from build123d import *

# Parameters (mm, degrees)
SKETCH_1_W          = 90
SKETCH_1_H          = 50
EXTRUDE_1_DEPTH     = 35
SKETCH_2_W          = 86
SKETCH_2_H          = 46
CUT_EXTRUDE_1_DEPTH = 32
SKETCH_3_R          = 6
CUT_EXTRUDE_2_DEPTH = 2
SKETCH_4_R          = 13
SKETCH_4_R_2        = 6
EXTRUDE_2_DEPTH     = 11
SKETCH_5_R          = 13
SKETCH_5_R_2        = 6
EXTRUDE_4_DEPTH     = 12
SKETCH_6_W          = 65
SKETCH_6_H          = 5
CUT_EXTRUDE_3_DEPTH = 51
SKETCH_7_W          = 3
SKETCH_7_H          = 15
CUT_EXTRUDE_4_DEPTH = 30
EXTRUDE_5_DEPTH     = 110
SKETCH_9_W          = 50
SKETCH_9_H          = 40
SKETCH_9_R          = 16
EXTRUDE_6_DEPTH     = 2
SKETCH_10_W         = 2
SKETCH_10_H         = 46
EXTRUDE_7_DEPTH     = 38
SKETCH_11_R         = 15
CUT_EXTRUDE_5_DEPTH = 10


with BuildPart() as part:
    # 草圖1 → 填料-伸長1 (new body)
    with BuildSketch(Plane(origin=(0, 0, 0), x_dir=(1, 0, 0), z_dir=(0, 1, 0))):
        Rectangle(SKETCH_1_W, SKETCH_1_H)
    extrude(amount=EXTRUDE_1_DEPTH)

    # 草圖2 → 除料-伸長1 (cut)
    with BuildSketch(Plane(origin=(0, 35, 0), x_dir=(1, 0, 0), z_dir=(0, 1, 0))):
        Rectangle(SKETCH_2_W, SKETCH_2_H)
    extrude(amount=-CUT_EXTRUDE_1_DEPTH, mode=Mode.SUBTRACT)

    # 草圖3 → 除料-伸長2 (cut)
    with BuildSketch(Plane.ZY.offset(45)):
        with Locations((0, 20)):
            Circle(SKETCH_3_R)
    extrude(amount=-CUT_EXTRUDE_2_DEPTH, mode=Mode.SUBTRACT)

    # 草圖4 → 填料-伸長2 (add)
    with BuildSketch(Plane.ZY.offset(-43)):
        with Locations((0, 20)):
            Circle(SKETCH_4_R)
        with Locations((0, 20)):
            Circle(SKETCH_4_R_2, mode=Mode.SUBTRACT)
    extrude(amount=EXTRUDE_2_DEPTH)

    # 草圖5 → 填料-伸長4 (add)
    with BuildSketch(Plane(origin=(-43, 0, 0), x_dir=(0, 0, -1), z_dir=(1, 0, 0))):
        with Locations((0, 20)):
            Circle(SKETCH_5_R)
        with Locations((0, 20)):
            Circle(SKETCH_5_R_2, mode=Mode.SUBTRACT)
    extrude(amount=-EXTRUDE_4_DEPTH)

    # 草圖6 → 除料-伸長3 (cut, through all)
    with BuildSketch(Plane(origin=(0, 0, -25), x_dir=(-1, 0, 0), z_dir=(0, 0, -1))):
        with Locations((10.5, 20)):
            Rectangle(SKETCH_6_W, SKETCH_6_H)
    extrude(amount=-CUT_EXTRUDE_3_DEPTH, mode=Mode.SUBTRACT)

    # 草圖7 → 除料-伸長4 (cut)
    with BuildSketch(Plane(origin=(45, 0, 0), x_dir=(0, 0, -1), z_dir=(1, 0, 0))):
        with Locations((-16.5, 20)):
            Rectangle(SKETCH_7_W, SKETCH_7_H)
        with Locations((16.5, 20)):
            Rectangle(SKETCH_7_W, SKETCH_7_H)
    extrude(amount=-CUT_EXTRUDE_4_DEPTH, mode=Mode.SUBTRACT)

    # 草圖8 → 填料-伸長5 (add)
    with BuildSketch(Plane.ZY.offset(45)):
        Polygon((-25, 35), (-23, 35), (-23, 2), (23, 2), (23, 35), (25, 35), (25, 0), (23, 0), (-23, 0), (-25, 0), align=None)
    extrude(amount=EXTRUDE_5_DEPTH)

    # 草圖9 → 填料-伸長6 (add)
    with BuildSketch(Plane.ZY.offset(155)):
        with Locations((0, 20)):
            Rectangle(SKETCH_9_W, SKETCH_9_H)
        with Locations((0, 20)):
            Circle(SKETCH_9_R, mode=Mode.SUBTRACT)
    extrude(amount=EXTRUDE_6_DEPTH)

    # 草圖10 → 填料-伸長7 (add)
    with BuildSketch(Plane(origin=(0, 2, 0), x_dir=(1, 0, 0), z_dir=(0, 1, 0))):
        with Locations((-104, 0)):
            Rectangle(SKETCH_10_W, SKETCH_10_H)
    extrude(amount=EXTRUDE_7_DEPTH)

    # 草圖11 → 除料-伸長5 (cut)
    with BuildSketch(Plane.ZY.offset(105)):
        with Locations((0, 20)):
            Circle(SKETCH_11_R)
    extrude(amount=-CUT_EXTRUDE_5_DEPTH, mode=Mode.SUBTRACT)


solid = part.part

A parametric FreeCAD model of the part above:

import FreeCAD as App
import Part
import Sketcher
from FreeCAD import Vector
Q = App.Units.Quantity


def add_polygon(sketch, points):
    """Adds a closed chain of lines whose ends are joined by coincident constraints."""
    first, n = sketch.GeometryCount, len(points)
    for a, b in zip(points, points[1:] + points[:1]):
        sketch.addGeometry(Part.LineSegment(App.Vector(*a, 0), App.Vector(*b, 0)), False)
    for i in range(n):
        sketch.addConstraint(Sketcher.Constraint("Coincident", first + i, 2, first + (i + 1) % n, 1))

doc = App.newDocument("Part")
body = doc.addObject("PartDesign::Body", "Body")

# Sketch on XZ plane
sketch1 = body.newObject("Sketcher::SketchObject", "Sketch")
sketch1.AttachmentSupport = (doc.getObject("XZ_Plane"), [""])
sketch1.MapMode = "FlatFace"
add_polygon(sketch1, [(-45, -25), (-45, 25), (45, 25), (45, -25)])  # lines 0-3
sketch1.addConstraint([
    Sketcher.Constraint("Vertical", 0),
    Sketcher.Constraint("Horizontal", 1),
    Sketcher.Constraint("Vertical", 2),
    Sketcher.Constraint("Horizontal", 3),
    Sketcher.Constraint("Symmetric", 0, 2, 2, 2, -1, 1),
    Sketcher.Constraint("DistanceX", 1, 1, 1, 2, Q("90 mm")),
    Sketcher.Constraint("DistanceY", 0, 1, 0, 2, Q("50 mm")),
])
pad1 = body.newObject("PartDesign::Pad", "Pad")
pad1.Profile = sketch1
pad1.Length = 35
pad1.Reversed = True

# Sketch on XZ plane
sketch2 = body.newObject("Sketcher::SketchObject", "Sketch001")
sketch2.AttachmentSupport = (doc.getObject("XZ_Plane"), [""])
sketch2.MapMode = "FlatFace"
sketch2.AttachmentOffset = App.Placement(Vector(0, 0, -35), App.Rotation())
add_polygon(sketch2, [(-43, -23), (-43, 23), (43, 23), (43, -23)])  # lines 0-3
sketch2.addConstraint([
    Sketcher.Constraint("Vertical", 0),
    Sketcher.Constraint("Horizontal", 1),
    Sketcher.Constraint("Vertical", 2),
    Sketcher.Constraint("Horizontal", 3),
    Sketcher.Constraint("Symmetric", 0, 2, 2, 2, -1, 1),
    Sketcher.Constraint("DistanceX", 1, 1, 1, 2, Q("86 mm")),
    Sketcher.Constraint("DistanceY", 0, 1, 0, 2, Q("46 mm")),
])
pocket1 = body.newObject("PartDesign::Pocket", "Pocket")
pocket1.Profile = sketch2
pocket1.Length = 32
pocket1.Reversed = True

# Sketch on YZ plane
sketch3 = body.newObject("Sketcher::SketchObject", "Sketch002")
sketch3.AttachmentSupport = (doc.getObject("YZ_Plane"), [""])
sketch3.MapMode = "FlatFace"
sketch3.AttachmentOffset = App.Placement(Vector(0, 0, -45), App.Rotation())
sketch3.addGeometry(Part.Circle(Vector(20, 0, 0), Vector(0, 0, 1), 6), False)
sketch3.addConstraint([
    Sketcher.Constraint("PointOnObject", 0, 3, -1),
    Sketcher.Constraint("Diameter", 0, Q("12 mm")),
    Sketcher.Constraint("DistanceX", -1, 1, 0, 3, Q("20 mm")),
])
pocket2 = body.newObject("PartDesign::Pocket", "Pocket001")
pocket2.Profile = sketch3
pocket2.Length = 2
pocket2.Reversed = True

# Sketch on YZ plane
sketch4 = body.newObject("Sketcher::SketchObject", "Sketch003")
sketch4.AttachmentSupport = (doc.getObject("YZ_Plane"), [""])
sketch4.MapMode = "FlatFace"
sketch4.AttachmentOffset = App.Placement(Vector(0, 0, 43), App.Rotation())
sketch4.addGeometry([
    Part.Circle(Vector(20, 0, 0), Vector(0, 0, 1), 13),
    Part.Circle(Vector(20, 0, 0), Vector(0, 0, 1), 6),
], False)
sketch4.addConstraint([
    Sketcher.Constraint("Coincident", 1, 3, 0, 3),
    Sketcher.Constraint("PointOnObject", 0, 3, -1),
    Sketcher.Constraint("Diameter", 0, Q("26 mm")),
    Sketcher.Constraint("Diameter", 1, Q("12 mm")),
    Sketcher.Constraint("DistanceX", -1, 1, 0, 3, Q("20 mm")),
])
pad2 = body.newObject("PartDesign::Pad", "Pad001")
pad2.Profile = sketch4
pad2.Length = 11
pad2.Reversed = True

# Sketch on YZ plane
sketch5 = body.newObject("Sketcher::SketchObject", "Sketch004")
sketch5.AttachmentSupport = (doc.getObject("YZ_Plane"), [""])
sketch5.MapMode = "FlatFace"
sketch5.AttachmentOffset = App.Placement(Vector(0, 0, -43), App.Rotation())
sketch5.addGeometry([
    Part.Circle(Vector(20, 0, 0), Vector(0, 0, 1), 13),
    Part.Circle(Vector(20, 0, 0), Vector(0, 0, 1), 6),
], False)
sketch5.addConstraint([
    Sketcher.Constraint("Coincident", 1, 3, 0, 3),
    Sketcher.Constraint("PointOnObject", 0, 3, -1),
    Sketcher.Constraint("Diameter", 0, Q("26 mm")),
    Sketcher.Constraint("Diameter", 1, Q("12 mm")),
    Sketcher.Constraint("DistanceX", -1, 1, 0, 3, Q("20 mm")),
])
pad3 = body.newObject("PartDesign::Pad", "Pad002")
pad3.Profile = sketch5
pad3.Length = 12
pad3.Reversed = True

# Sketch on XY plane
sketch6 = body.newObject("Sketcher::SketchObject", "Sketch005")
sketch6.AttachmentSupport = (doc.getObject("XY_Plane"), [""])
sketch6.MapMode = "FlatFace"
sketch6.AttachmentOffset = App.Placement(Vector(0, 0, -25), App.Rotation())
add_polygon(sketch6, [(22, 22), (22, 18), (-43, 18), (-43, 22)])  # lines 0-3
sketch6.addConstraint([
    Sketcher.Constraint("Vertical", 0),
    Sketcher.Constraint("Horizontal", 1),
    Sketcher.Constraint("Vertical", 2),
    Sketcher.Constraint("Horizontal", 3),
    Sketcher.Constraint("DistanceX", 1, 2, 1, 1, Q("65 mm")),
    Sketcher.Constraint("DistanceY", 0, 2, 0, 1, Q("5 mm")),
    Sketcher.Constraint("DistanceX", -1, 1, 0, 2, Q("22 mm")),
    Sketcher.Constraint("DistanceY", -1, 1, 0, 2, Q("17.5 mm")),
])
pocket3 = body.newObject("PartDesign::Pocket", "Pocket002")
pocket3.Profile = sketch6
pocket3.Type = "ThroughAll"
pocket3.Reversed = True

# Sketch on YZ plane
sketch7 = body.newObject("Sketcher::SketchObject", "Sketch006")
sketch7.AttachmentSupport = (doc.getObject("YZ_Plane"), [""])
sketch7.MapMode = "FlatFace"
sketch7.AttachmentOffset = App.Placement(Vector(0, 0, 45), App.Rotation())
add_polygon(sketch7, [(27.5, 18), (12.5, 18), (12.5, 15), (27.5, 15)])  # lines 0-3
add_polygon(sketch7, [(27.5, -15), (12.5, -15), (12.5, -18), (27.5, -18)])  # lines 4-7
sketch7.addConstraint([
    Sketcher.Constraint("Horizontal", 0),
    Sketcher.Constraint("Vertical", 1),
    Sketcher.Constraint("Horizontal", 2),
    Sketcher.Constraint("Vertical", 3),
    Sketcher.Constraint("Horizontal", 4),
    Sketcher.Constraint("Vertical", 5),
    Sketcher.Constraint("Horizontal", 6),
    Sketcher.Constraint("Vertical", 7),
    Sketcher.Constraint("Symmetric", 1, 2, 4, 2, -1),
    Sketcher.Constraint("Symmetric", 3, 2, 6, 2, -1),
    Sketcher.Constraint("DistanceX", 0, 2, 0, 1, Q("15 mm")),
    Sketcher.Constraint("DistanceY", 1, 2, 1, 1, Q("3 mm")),
    Sketcher.Constraint("DistanceY", -1, 1, 0, 2, Q("18 mm")),
    Sketcher.Constraint("DistanceX", -1, 1, 0, 2, Q("12.5 mm")),
])
pocket4 = body.newObject("PartDesign::Pocket", "Pocket003")
pocket4.Profile = sketch7
pocket4.Length = 30

# Sketch on YZ plane
sketch8 = body.newObject("Sketcher::SketchObject", "Sketch007")
sketch8.AttachmentSupport = (doc.getObject("YZ_Plane"), [""])
sketch8.MapMode = "FlatFace"
sketch8.AttachmentOffset = App.Placement(Vector(0, 0, -45), App.Rotation())
add_polygon(sketch8, [(35, -23), (35, -25), (0, -25), (0, 25), (35, 25), (35, 23), (2, 23), (2, -23)])  # lines 0-7
sketch8.addConstraint([
    Sketcher.Constraint("Vertical", 0),
    Sketcher.Constraint("Horizontal", 1),
    Sketcher.Constraint("Vertical", 2),
    Sketcher.Constraint("Horizontal", 3),
    Sketcher.Constraint("Vertical", 4),
    Sketcher.Constraint("Horizontal", 5),
    Sketcher.Constraint("Vertical", 6),
    Sketcher.Constraint("Horizontal", 7),
    Sketcher.Constraint("Symmetric", 1, 2, 2, 2, -1, 1),
    Sketcher.Constraint("Symmetric", 4, 2, 7, 2, -1),
    Sketcher.Constraint("DistanceX", 1, 2, 1, 1, Q("35 mm")),
    Sketcher.Constraint("DistanceX", 5, 2, 5, 1, Q("33 mm")),
    Sketcher.Constraint("DistanceY", 0, 2, 0, 1, Q("2 mm")),
    Sketcher.Constraint("DistanceY", 2, 1, 2, 2, Q("50 mm")),
])
pad4 = body.newObject("PartDesign::Pad", "Pad003")
pad4.Profile = sketch8
pad4.Length = 110
pad4.Reversed = True

# Sketch on YZ plane
sketch9 = body.newObject("Sketcher::SketchObject", "Sketch008")
sketch9.AttachmentSupport = (doc.getObject("YZ_Plane"), [""])
sketch9.MapMode = "FlatFace"
sketch9.AttachmentOffset = App.Placement(Vector(0, 0, -155), App.Rotation())
add_polygon(sketch9, [(40, -25), (0, -25), (0, 25), (40, 25)])  # lines 0-3
sketch9.addGeometry(Part.Circle(Vector(20, 0, 0), Vector(0, 0, 1), 16), False)  # 4
sketch9.addConstraint([
    Sketcher.Constraint("Horizontal", 0),
    Sketcher.Constraint("Vertical", 1),
    Sketcher.Constraint("Horizontal", 2),
    Sketcher.Constraint("Vertical", 3),
    Sketcher.Constraint("Symmetric", 0, 2, 1, 2, -1, 1),
    Sketcher.Constraint("PointOnObject", 4, 3, -1),
    Sketcher.Constraint("Diameter", 4, Q("32 mm")),
    Sketcher.Constraint("DistanceX", 0, 2, 0, 1, Q("40 mm")),
    Sketcher.Constraint("DistanceY", 1, 1, 1, 2, Q("50 mm")),
    Sketcher.Constraint("DistanceX", -1, 1, 4, 3, Q("20 mm")),
])
pad5 = body.newObject("PartDesign::Pad", "Pad004")
pad5.Profile = sketch9
pad5.Length = 2
pad5.Reversed = True

# Sketch on XZ plane
sketch10 = body.newObject("Sketcher::SketchObject", "Sketch009")
sketch10.AttachmentSupport = (doc.getObject("XZ_Plane"), [""])
sketch10.MapMode = "FlatFace"
sketch10.AttachmentOffset = App.Placement(Vector(0, 0, -2), App.Rotation())
add_polygon(sketch10, [(-105, -23), (-105, 23), (-103, 23), (-103, -23)])  # lines 0-3
sketch10.addConstraint([
    Sketcher.Constraint("Vertical", 0),
    Sketcher.Constraint("Horizontal", 1),
    Sketcher.Constraint("Vertical", 2),
    Sketcher.Constraint("Horizontal", 3),
    Sketcher.Constraint("DistanceX", 1, 1, 1, 2, Q("2 mm")),
    Sketcher.Constraint("DistanceY", 0, 1, 0, 2, Q("46 mm")),
    Sketcher.Constraint("DistanceX", 0, 2, -1, 1, Q("105 mm")),
    Sketcher.Constraint("DistanceY", -1, 1, 0, 2, Q("23 mm")),
])
pad6 = body.newObject("PartDesign::Pad", "Pad005")
pad6.Profile = sketch10
pad6.Length = 38
pad6.Reversed = True

# Sketch on YZ plane
sketch11 = body.newObject("Sketcher::SketchObject", "Sketch010")
sketch11.AttachmentSupport = (doc.getObject("YZ_Plane"), [""])
sketch11.MapMode = "FlatFace"
sketch11.AttachmentOffset = App.Placement(Vector(0, 0, -105), App.Rotation())
sketch11.addGeometry(Part.Circle(Vector(20, 0, 0), Vector(0, 0, 1), 15), False)
sketch11.addConstraint([
    Sketcher.Constraint("PointOnObject", 0, 3, -1),
    Sketcher.Constraint("Diameter", 0, Q("30 mm")),
    Sketcher.Constraint("DistanceX", -1, 1, 0, 3, Q("20 mm")),
])
pocket5 = body.newObject("PartDesign::Pocket", "Pocket004")
pocket5.Profile = sketch11
pocket5.Length = 10
pocket5.Reversed = True

doc.recompute()
